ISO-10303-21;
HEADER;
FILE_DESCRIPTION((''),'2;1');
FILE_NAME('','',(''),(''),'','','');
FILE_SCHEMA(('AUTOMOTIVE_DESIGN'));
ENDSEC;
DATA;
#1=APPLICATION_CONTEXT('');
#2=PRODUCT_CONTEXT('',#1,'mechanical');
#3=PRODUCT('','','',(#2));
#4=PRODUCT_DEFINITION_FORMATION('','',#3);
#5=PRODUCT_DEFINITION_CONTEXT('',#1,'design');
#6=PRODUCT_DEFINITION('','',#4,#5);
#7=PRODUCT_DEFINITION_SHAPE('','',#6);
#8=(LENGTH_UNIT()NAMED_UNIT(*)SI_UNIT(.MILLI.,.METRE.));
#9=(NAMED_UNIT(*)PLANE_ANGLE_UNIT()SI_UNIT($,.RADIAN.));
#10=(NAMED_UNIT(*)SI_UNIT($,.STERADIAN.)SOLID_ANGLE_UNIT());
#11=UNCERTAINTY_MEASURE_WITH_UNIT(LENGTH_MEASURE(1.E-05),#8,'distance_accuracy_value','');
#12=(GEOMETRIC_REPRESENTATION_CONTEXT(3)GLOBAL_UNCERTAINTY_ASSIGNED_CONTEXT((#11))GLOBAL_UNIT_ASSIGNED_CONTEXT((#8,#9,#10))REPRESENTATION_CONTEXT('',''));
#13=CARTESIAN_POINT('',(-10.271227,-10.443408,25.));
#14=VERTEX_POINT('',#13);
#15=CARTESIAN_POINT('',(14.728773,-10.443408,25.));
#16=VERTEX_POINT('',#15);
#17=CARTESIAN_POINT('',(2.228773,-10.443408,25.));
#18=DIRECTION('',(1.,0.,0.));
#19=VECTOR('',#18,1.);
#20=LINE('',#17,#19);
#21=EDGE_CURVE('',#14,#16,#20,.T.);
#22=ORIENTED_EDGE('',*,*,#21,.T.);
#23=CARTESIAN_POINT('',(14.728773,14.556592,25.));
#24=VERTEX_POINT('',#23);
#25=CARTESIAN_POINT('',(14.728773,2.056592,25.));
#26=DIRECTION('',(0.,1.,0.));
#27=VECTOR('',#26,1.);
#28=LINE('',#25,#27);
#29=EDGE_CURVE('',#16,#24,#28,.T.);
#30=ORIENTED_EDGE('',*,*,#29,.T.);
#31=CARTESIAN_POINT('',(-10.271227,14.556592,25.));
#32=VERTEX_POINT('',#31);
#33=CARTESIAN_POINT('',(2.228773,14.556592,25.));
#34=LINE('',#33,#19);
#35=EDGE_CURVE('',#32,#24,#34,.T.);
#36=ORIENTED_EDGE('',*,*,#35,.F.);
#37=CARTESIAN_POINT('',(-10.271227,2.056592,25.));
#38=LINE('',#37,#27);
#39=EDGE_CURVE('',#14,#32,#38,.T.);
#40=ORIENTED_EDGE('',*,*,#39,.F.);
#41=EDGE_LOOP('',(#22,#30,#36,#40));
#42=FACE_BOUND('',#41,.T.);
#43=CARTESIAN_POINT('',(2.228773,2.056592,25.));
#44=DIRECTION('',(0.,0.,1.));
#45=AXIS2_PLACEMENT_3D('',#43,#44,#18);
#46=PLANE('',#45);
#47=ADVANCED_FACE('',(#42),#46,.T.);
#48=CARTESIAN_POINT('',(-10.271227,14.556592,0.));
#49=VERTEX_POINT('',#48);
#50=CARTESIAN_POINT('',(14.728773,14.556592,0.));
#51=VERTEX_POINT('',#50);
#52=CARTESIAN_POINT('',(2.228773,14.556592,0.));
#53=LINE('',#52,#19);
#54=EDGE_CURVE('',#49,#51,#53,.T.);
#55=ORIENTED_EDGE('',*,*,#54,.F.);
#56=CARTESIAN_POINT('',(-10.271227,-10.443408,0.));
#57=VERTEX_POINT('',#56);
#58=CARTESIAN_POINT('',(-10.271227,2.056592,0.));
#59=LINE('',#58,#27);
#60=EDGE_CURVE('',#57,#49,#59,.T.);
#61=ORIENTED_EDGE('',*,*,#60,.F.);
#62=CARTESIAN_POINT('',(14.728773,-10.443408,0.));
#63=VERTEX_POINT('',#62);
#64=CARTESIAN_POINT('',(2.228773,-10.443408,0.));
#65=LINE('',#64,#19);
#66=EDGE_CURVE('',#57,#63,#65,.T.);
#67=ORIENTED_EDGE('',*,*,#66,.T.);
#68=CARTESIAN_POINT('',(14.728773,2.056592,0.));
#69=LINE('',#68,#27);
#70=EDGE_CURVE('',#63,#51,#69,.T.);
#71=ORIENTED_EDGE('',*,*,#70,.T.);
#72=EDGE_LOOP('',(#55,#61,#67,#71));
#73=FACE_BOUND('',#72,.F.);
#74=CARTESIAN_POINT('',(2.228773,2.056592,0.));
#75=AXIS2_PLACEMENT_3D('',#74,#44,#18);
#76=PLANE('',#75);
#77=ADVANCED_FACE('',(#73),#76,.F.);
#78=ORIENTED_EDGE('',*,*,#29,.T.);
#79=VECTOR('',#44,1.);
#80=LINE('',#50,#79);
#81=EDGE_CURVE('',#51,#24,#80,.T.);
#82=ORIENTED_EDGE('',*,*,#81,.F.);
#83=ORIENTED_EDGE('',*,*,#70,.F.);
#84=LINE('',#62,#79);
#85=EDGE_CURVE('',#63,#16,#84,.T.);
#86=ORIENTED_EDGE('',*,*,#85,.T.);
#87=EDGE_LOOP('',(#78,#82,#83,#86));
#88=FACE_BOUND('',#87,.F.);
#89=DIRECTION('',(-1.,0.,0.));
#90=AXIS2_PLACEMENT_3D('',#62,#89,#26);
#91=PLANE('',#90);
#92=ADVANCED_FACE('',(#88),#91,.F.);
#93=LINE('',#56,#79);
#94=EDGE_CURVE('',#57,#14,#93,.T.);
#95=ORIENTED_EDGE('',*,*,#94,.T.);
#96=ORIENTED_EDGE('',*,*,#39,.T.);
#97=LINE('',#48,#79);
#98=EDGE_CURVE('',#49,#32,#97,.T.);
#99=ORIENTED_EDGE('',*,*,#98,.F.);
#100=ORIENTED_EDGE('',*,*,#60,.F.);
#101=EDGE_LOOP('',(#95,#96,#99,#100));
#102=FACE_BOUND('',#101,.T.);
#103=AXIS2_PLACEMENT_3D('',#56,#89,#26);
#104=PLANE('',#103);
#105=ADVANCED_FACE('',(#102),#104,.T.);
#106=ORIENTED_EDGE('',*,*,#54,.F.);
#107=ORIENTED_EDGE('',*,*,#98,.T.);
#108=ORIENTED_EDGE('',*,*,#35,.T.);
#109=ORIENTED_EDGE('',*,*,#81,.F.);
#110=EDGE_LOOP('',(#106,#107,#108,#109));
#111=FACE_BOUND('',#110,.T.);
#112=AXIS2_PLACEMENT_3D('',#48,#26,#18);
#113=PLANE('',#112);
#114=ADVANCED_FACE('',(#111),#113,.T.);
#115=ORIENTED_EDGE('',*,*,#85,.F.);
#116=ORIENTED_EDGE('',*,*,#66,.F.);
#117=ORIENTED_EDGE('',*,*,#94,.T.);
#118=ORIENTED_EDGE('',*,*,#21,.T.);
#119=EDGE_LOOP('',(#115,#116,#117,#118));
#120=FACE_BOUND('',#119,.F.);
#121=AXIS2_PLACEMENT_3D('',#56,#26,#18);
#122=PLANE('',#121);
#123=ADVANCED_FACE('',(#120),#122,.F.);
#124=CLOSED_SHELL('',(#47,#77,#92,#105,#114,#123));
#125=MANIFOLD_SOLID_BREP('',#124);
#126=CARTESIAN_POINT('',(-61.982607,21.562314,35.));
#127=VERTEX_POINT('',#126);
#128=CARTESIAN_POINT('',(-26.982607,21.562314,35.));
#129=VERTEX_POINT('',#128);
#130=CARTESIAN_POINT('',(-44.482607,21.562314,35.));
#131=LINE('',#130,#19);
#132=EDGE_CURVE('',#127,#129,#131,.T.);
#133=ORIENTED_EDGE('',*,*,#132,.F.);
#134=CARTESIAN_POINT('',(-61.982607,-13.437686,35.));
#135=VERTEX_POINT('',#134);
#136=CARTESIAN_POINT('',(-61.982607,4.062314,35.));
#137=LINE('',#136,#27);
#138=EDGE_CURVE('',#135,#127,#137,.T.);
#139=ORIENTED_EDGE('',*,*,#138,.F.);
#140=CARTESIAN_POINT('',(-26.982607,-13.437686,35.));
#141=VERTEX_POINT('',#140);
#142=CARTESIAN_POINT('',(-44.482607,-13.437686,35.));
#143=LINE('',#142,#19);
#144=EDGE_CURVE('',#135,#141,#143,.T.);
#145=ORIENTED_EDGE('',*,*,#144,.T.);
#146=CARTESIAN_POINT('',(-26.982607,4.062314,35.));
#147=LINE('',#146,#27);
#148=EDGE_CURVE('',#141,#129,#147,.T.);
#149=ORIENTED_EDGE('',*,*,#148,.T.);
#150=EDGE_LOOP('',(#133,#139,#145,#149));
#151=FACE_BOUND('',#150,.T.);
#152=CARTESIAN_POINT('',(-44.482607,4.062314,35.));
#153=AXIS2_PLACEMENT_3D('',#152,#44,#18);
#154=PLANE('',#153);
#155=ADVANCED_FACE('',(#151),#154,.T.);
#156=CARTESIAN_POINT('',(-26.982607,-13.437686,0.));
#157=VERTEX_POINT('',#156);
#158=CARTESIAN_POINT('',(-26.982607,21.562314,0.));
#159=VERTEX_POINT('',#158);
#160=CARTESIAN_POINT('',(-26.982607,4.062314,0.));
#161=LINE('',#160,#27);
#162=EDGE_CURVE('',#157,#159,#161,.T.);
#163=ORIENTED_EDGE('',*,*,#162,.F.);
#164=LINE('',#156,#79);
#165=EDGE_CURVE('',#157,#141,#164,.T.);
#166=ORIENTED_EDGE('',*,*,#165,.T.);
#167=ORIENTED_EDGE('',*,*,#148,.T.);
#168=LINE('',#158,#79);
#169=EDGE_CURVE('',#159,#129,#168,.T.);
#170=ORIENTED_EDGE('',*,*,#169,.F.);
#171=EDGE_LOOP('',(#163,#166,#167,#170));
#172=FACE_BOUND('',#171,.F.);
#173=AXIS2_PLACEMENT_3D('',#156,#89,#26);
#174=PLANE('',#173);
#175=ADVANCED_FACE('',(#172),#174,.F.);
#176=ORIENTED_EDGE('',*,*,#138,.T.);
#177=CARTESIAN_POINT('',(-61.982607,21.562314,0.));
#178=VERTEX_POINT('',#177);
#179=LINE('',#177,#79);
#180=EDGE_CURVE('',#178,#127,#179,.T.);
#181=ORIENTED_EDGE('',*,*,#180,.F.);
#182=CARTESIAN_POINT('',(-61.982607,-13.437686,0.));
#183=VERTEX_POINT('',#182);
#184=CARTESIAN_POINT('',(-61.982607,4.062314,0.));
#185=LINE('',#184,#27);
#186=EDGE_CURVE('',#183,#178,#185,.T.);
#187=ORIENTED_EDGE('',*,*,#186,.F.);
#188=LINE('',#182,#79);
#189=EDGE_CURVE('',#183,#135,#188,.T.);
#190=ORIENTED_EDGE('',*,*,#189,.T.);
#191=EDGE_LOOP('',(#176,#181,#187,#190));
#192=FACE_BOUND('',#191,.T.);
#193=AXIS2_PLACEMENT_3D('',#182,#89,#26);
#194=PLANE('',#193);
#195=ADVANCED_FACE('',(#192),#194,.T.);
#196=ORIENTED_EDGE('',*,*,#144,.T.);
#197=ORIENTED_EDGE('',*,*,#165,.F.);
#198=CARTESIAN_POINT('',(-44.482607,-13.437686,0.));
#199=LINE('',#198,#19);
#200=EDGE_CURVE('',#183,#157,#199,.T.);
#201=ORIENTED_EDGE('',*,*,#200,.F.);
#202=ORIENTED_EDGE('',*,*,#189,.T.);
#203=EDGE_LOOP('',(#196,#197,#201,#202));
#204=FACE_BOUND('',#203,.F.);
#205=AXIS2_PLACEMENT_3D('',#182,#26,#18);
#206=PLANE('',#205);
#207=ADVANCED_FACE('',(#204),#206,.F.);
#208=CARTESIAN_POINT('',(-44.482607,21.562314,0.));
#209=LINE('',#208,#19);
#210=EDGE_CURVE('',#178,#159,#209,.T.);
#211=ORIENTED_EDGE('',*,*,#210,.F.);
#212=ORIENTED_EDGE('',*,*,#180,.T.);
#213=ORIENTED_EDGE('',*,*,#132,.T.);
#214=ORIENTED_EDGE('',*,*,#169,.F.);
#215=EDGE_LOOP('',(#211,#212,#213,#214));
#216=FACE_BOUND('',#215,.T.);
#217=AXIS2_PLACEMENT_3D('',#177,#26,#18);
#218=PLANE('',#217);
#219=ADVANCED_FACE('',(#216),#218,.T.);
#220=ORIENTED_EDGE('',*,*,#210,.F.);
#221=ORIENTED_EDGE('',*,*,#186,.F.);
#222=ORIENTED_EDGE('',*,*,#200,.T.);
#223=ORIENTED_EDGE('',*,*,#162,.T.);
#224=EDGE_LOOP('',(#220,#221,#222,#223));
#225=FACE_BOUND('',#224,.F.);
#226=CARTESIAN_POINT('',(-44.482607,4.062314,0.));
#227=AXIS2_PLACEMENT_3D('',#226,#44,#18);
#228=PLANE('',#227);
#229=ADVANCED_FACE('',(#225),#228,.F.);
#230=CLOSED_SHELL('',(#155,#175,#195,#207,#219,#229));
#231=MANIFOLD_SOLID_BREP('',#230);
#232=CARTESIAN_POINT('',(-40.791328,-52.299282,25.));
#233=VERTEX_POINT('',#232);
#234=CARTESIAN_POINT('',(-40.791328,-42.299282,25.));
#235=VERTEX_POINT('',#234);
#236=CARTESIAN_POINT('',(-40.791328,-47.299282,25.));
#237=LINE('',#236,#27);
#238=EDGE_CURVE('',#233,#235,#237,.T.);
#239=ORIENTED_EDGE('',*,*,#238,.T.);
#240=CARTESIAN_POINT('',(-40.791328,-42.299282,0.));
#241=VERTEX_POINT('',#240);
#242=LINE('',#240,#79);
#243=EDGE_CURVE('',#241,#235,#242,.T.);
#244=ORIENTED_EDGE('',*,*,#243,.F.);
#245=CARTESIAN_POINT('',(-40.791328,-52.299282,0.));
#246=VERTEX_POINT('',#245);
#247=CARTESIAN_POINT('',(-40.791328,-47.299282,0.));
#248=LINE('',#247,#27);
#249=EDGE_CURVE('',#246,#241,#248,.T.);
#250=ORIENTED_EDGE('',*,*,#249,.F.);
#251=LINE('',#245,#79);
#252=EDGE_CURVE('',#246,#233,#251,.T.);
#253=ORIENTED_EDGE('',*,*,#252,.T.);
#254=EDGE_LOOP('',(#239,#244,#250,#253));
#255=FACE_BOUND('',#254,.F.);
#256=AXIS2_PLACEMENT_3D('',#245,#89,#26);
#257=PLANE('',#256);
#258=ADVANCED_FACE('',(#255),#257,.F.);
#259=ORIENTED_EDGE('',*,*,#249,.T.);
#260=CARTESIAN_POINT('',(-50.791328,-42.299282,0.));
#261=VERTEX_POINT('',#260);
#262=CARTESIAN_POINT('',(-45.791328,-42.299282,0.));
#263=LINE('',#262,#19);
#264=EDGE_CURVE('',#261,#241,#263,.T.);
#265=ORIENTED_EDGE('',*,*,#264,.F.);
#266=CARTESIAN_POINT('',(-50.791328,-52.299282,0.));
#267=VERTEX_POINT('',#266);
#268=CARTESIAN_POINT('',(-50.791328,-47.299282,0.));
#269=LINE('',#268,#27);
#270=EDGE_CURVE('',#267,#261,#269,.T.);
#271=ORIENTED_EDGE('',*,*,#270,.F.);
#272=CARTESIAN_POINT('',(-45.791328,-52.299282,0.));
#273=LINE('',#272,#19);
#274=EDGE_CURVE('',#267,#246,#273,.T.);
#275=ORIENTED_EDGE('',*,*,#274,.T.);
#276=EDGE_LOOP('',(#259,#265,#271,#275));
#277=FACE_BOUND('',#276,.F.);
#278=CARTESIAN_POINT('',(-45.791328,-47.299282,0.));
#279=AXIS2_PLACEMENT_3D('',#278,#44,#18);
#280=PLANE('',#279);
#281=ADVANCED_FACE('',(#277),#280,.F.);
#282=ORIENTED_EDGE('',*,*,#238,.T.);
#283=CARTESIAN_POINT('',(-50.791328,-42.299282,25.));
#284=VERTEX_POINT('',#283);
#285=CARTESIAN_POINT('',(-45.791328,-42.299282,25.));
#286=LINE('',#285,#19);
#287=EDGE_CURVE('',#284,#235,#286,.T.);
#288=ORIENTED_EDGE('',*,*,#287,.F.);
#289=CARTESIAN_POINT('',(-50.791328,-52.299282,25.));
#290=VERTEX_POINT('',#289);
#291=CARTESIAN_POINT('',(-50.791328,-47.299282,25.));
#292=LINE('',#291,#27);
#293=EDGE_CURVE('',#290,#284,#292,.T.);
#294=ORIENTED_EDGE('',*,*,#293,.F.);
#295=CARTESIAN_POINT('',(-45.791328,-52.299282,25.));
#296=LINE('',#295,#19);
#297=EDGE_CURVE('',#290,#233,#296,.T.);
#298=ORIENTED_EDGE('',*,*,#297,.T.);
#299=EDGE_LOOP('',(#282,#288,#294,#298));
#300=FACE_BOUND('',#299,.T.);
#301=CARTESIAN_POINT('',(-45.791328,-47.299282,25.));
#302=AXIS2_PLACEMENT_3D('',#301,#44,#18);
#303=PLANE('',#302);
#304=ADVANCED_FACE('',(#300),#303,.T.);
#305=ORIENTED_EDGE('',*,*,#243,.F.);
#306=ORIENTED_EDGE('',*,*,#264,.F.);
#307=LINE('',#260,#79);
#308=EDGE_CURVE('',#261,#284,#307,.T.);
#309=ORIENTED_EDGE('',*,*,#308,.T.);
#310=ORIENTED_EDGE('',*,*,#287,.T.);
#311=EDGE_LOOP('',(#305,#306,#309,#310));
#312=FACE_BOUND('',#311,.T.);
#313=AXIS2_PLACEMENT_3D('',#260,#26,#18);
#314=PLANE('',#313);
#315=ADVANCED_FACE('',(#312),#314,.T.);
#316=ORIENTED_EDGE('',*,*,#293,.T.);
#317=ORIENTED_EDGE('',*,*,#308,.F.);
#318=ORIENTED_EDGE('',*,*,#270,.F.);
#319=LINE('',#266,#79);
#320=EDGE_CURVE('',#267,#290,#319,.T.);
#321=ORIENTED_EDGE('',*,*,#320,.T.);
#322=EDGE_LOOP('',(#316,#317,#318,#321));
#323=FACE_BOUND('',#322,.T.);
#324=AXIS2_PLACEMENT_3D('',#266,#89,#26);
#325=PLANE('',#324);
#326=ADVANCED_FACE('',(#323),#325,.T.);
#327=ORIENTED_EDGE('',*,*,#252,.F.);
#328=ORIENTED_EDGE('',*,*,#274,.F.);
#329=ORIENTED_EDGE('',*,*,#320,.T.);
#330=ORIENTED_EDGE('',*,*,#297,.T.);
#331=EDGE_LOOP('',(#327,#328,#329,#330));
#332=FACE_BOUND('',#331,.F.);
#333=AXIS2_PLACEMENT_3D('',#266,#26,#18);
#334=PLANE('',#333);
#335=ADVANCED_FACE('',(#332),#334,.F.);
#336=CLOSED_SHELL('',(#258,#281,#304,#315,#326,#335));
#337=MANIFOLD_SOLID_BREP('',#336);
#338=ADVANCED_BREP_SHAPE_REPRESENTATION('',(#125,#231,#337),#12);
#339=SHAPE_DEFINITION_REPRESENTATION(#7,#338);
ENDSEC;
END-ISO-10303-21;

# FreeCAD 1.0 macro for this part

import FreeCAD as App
import Part
import Sketcher
Q = App.Units.Quantity

doc = App.newDocument("Part")
params = doc.addObject("Spreadsheet::Sheet", "Params")
for row, (alias, value) in enumerate([
    ("sketch1_width", "25 mm"),
    ("pad1_length", "25 mm"),
    ("sketch2_width", "35 mm"),
    ("pad2_length", "35 mm"),
    ("sketch3_width", "10 mm"),
    ("pad3_length", "25 mm"),
], start=1):
    params.set(f"A{row}", alias)
    params.set(f"B{row}", "=" + value)
    params.setAlias(f"B{row}", alias)

body = doc.addObject("PartDesign::Body", "Body")

# Sketch on XY plane
sketch1 = body.newObject("Sketcher::SketchObject", "Sketch")
sketch1.AttachmentSupport = (doc.getObject("XY_Plane"), [""])
sketch1.MapMode = "FlatFace"
sketch1.addGeometry(Part.LineSegment(App.Vector(-10, 15, 0), App.Vector(-10, -10, 0)), False)
sketch1.addGeometry(Part.LineSegment(App.Vector(-10, -10, 0), App.Vector(15, -10, 0)), False)
sketch1.addGeometry(Part.LineSegment(App.Vector(15, -10, 0), App.Vector(15, 15, 0)), False)
sketch1.addGeometry(Part.LineSegment(App.Vector(15, 15, 0), App.Vector(-10, 15, 0)), False)
sketch1.addConstraint(Sketcher.Constraint("Coincident", 0, 2, 1, 1))
sketch1.addConstraint(Sketcher.Constraint("Coincident", 1, 2, 2, 1))
sketch1.addConstraint(Sketcher.Constraint("Coincident", 2, 2, 3, 1))
sketch1.addConstraint(Sketcher.Constraint("Coincident", 3, 2, 0, 1))
sketch1.addConstraint(Sketcher.Constraint("Vertical", 0))
sketch1.addConstraint(Sketcher.Constraint("Horizontal", 1))
sketch1.addConstraint(Sketcher.Constraint("Vertical", 2))
sketch1.addConstraint(Sketcher.Constraint("Horizontal", 3))
sketch1.addConstraint(Sketcher.Constraint("Equal", 3, 0))
sketch1.addConstraint(Sketcher.Constraint("DistanceX", 1, 1, 1, 2, Q("25 mm")))
sketch1.addConstraint(Sketcher.Constraint("DistanceX", 0, 2, -1, 1, Q("10.271227 mm")))
sketch1.addConstraint(Sketcher.Constraint("DistanceY", 0, 2, -1, 1, Q("10.443408 mm")))
sketch1.setExpression("Constraints[9]", "Params.sketch1_width")
pad1 = body.newObject("PartDesign::Pad", "Pad")
pad1.Profile = sketch1
pad1.setExpression("Length", "Params.pad1_length")
body2 = doc.addObject("PartDesign::Body", "Body001")

# Sketch on XY plane
sketch2 = body2.newObject("Sketcher::SketchObject", "Sketch001")
sketch2.AttachmentSupport = (doc.getObject("XY_Plane001"), [""])
sketch2.MapMode = "FlatFace"
sketch2.addGeometry(Part.LineSegment(App.Vector(-62, 22, 0), App.Vector(-62, -13, 0)), False)
sketch2.addGeometry(Part.LineSegment(App.Vector(-62, -13, 0), App.Vector(-27, -13, 0)), False)
sketch2.addGeometry(Part.LineSegment(App.Vector(-27, -13, 0), App.Vector(-27, 22, 0)), False)
sketch2.addGeometry(Part.LineSegment(App.Vector(-27, 22, 0), App.Vector(-62, 22, 0)), False)
sketch2.addConstraint(Sketcher.Constraint("Coincident", 0, 2, 1, 1))
sketch2.addConstraint(Sketcher.Constraint("Coincident", 1, 2, 2, 1))
sketch2.addConstraint(Sketcher.Constraint("Coincident", 2, 2, 3, 1))
sketch2.addConstraint(Sketcher.Constraint("Coincident", 3, 2, 0, 1))
sketch2.addConstraint(Sketcher.Constraint("Vertical", 0))
sketch2.addConstraint(Sketcher.Constraint("Horizontal", 1))
sketch2.addConstraint(Sketcher.Constraint("Vertical", 2))
sketch2.addConstraint(Sketcher.Constraint("Horizontal", 3))
sketch2.addConstraint(Sketcher.Constraint("Equal", 3, 0))
sketch2.addConstraint(Sketcher.Constraint("DistanceX", 1, 1, 1, 2, Q("35 mm")))
sketch2.addConstraint(Sketcher.Constraint("DistanceX", 0, 2, -1, 1, Q("61.982607 mm")))
sketch2.addConstraint(Sketcher.Constraint("DistanceY", 0, 2, -1, 1, Q("13.437686 mm")))
sketch2.setExpression("Constraints[9]", "Params.sketch2_width")
pad2 = body2.newObject("PartDesign::Pad", "Pad001")
pad2.Profile = sketch2
pad2.setExpression("Length", "Params.pad2_length")
body3 = doc.addObject("PartDesign::Body", "Body002")

# Sketch on XY plane
sketch3 = body3.newObject("Sketcher::SketchObject", "Sketch002")
sketch3.AttachmentSupport = (doc.getObject("XY_Plane002"), [""])
sketch3.MapMode = "FlatFace"
sketch3.addGeometry(Part.LineSegment(App.Vector(-51, -42, 0), App.Vector(-51, -52, 0)), False)
sketch3.addGeometry(Part.LineSegment(App.Vector(-51, -52, 0), App.Vector(-41, -52, 0)), False)
sketch3.addGeometry(Part.LineSegment(App.Vector(-41, -52, 0), App.Vector(-41, -42, 0)), False)
sketch3.addGeometry(Part.LineSegment(App.Vector(-41, -42, 0), App.Vector(-51, -42, 0)), False)
sketch3.addConstraint(Sketcher.Constraint("Coincident", 0, 2, 1, 1))
sketch3.addConstraint(Sketcher.Constraint("Coincident", 1, 2, 2, 1))
sketch3.addConstraint(Sketcher.Constraint("Coincident", 2, 2, 3, 1))
sketch3.addConstraint(Sketcher.Constraint("Coincident", 3, 2, 0, 1))
sketch3.addConstraint(Sketcher.Constraint("Vertical", 0))
sketch3.addConstraint(Sketcher.Constraint("Horizontal", 1))
sketch3.addConstraint(Sketcher.Constraint("Vertical", 2))
sketch3.addConstraint(Sketcher.Constraint("Horizontal", 3))
sketch3.addConstraint(Sketcher.Constraint("Equal", 3, 0))
sketch3.addConstraint(Sketcher.Constraint("DistanceX", 1, 1, 1, 2, Q("10 mm")))
sketch3.addConstraint(Sketcher.Constraint("DistanceY", 0, 2, -1, 1, Q("52.299282 mm")))
sketch3.addConstraint(Sketcher.Constraint("DistanceX", 0, 2, -1, 1, Q("50.791328 mm")))
sketch3.setExpression("Constraints[9]", "Params.sketch3_width")
pad3 = body3.newObject("PartDesign::Pad", "Pad002")
pad3.Profile = sketch3
pad3.setExpression("Length", "Params.pad3_length")

doc.recompute()
